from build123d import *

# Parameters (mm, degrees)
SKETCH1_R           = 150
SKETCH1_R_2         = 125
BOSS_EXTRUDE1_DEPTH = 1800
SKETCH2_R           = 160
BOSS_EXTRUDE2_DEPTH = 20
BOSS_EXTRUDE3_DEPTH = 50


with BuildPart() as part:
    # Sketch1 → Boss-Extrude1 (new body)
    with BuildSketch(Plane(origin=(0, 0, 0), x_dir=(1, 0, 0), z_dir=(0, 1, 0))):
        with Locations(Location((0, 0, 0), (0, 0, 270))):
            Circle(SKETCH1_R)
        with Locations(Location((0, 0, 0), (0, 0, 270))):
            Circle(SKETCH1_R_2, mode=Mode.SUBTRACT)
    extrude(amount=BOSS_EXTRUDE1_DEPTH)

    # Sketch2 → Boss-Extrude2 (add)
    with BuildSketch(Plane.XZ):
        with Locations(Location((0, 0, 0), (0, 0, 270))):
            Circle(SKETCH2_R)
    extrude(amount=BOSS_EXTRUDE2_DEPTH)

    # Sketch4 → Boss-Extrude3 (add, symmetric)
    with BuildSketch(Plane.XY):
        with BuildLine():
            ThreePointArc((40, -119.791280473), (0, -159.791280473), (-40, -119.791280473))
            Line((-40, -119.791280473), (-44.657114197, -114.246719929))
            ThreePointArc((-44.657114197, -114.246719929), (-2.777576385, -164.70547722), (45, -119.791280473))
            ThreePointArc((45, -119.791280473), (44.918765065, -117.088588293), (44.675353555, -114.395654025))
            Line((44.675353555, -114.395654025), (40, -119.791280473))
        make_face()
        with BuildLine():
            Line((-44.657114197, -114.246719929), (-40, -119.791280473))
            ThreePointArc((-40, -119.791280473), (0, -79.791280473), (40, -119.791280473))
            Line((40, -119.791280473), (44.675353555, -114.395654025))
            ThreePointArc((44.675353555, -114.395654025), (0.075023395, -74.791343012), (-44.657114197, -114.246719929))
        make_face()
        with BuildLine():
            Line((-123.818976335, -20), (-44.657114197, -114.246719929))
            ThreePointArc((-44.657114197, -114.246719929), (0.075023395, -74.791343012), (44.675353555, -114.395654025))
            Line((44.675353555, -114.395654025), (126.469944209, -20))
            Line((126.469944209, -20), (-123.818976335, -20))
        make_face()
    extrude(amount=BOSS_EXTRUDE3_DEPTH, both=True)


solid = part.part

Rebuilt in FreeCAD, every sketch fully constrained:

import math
import FreeCAD as App
import Part
import Sketcher

doc = App.newDocument("Part")
params = doc.addObject("Spreadsheet::Sheet", "Params")
for row, (alias, value) in enumerate([
    ("sketch1_diameter", "300 mm"),
    ("sketch1_diameter2", "250 mm"),
    ("pad1_length", "1800 mm"),
    ("sketch2_diameter", "320 mm"),
    ("pad2_length", "20 mm"),
    ("sketch3_diameter", "80 mm"),
    ("sketch3_radius", "45 mm"),
    ("pad3_length", "100 mm"),
], start=1):
    params.set(f"A{row}", alias)
    params.set(f"B{row}", "=" + value)
    params.setAlias(f"B{row}", alias)

body = doc.addObject("PartDesign::Body", "Body")

sketch1 = body.newObject("Sketcher::SketchObject", "Sketch")
sketch1.AttachmentSupport = (doc.getObject("XZ_Plane"), [""])
sketch1.MapMode = "FlatFace"
sketch1.addGeometry([
    Part.Circle(App.Vector(0, 0, 0), App.Vector(0, 0, 1), 150),
    Part.Circle(App.Vector(0, 0, 0), App.Vector(0, 0, 1), 125),
], False)
sketch1.addConstraint([
    Sketcher.Constraint("Coincident", 0, 3, -1, 1),
    Sketcher.Constraint("Coincident", 1, 3, -1, 1),
    Sketcher.Constraint("Diameter", 0, 300.0),
    Sketcher.Constraint("Diameter", 1, 250.0),
])
sketch1.setExpression("Constraints[2]", "Params.sketch1_diameter")
sketch1.setExpression("Constraints[3]", "Params.sketch1_diameter2")
pad1 = body.newObject("PartDesign::Pad", "Pad")
pad1.Profile = sketch1
pad1.setExpression("Length", "Params.pad1_length")
pad1.Reversed = True

sketch2 = body.newObject("Sketcher::SketchObject", "Sketch001")
sketch2.AttachmentSupport = (doc.getObject("XZ_Plane"), [""])
sketch2.MapMode = "FlatFace"
sketch2.addGeometry(Part.Circle(App.Vector(0, 0, 0), App.Vector(0, 0, 1), 160), False)
sketch2.addConstraint([
    Sketcher.Constraint("Coincident", 0, 3, -1, 1),
    Sketcher.Constraint("Diameter", 0, 320.0),
])
sketch2.setExpression("Constraints[1]", "Params.sketch2_diameter")
pad2 = body.newObject("PartDesign::Pad", "Pad001")
pad2.Profile = sketch2
pad2.setExpression("Length", "Params.pad2_length")

sketch3 = body.newObject("Sketcher::SketchObject", "Sketch002")
sketch3.AttachmentSupport = (doc.getObject("XY_Plane"), [""])
sketch3.MapMode = "FlatFace"
sketch3.addGeometry([
    Part.ArcOfCircle(Part.Circle(App.Vector(0, -119.79128, 0), App.Vector(0, 0, 1), 45), math.radians(172.922461), math.radians(360)),
    Part.ArcOfCircle(Part.Circle(App.Vector(0, -119.79128, 0), App.Vector(0, 0, 1), 45), math.radians(0), math.radians(6.886493)),
    Part.LineSegment(App.Vector(44.675354, -114.395654, 0), App.Vector(126.469944, -20, 0)),
    Part.LineSegment(App.Vector(126.469944, -20, 0), App.Vector(-123.818976, -20, 0)),
    Part.LineSegment(App.Vector(-123.818976, -20, 0), App.Vector(-44.657114, -114.24672, 0)),
    Part.Circle(App.Vector(0, -119.79128, 0), App.Vector(0, 0, 1), 40),
], False)
sketch3.addConstraint([
    Sketcher.Constraint("Tangent", 0, 2, 1, 1),
    Sketcher.Constraint("Coincident", 1, 2, 2, 1),
    Sketcher.Constraint("Coincident", 2, 2, 3, 1),
    Sketcher.Constraint("Coincident", 3, 2, 4, 1),
    Sketcher.Constraint("Coincident", 4, 2, 0, 1),
    Sketcher.Constraint("Horizontal", 3),
    Sketcher.Constraint("Coincident", 5, 3, 0, 3),
    Sketcher.Constraint("Equal", 0, 1),
    Sketcher.Constraint("PointOnObject", 0, 3, -2),
    Sketcher.Constraint("Horizontal", 5, 3, 0, 2),
    Sketcher.Constraint("Diameter", 5, 80.0),
    Sketcher.Constraint("Radius", 0, 45.0),
    Sketcher.Constraint("DistanceY", 2, 2, -1, 1, 20.0),
    Sketcher.Constraint("DistanceX", 3, 2, 3, 1, 250.288921),
    Sketcher.Constraint("Distance", 2, 124.903541),
    Sketcher.Constraint("DistanceY", 0, 3, -1, 1, 119.79128),
    Sketcher.Constraint("DistanceY", 4, 2, -1, 1, 114.24672),
    Sketcher.Constraint("DistanceX", 1, 2, 2, 2, 81.794591),
])
sketch3.setExpression("Constraints[10]", "Params.sketch3_diameter")
sketch3.setExpression("Constraints[11]", "Params.sketch3_radius")
pad3 = body.newObject("PartDesign::Pad", "Pad002")
pad3.Profile = sketch3
pad3.setExpression("Length", "Params.pad3_length")
pad3.Midplane = True

doc.recompute()
